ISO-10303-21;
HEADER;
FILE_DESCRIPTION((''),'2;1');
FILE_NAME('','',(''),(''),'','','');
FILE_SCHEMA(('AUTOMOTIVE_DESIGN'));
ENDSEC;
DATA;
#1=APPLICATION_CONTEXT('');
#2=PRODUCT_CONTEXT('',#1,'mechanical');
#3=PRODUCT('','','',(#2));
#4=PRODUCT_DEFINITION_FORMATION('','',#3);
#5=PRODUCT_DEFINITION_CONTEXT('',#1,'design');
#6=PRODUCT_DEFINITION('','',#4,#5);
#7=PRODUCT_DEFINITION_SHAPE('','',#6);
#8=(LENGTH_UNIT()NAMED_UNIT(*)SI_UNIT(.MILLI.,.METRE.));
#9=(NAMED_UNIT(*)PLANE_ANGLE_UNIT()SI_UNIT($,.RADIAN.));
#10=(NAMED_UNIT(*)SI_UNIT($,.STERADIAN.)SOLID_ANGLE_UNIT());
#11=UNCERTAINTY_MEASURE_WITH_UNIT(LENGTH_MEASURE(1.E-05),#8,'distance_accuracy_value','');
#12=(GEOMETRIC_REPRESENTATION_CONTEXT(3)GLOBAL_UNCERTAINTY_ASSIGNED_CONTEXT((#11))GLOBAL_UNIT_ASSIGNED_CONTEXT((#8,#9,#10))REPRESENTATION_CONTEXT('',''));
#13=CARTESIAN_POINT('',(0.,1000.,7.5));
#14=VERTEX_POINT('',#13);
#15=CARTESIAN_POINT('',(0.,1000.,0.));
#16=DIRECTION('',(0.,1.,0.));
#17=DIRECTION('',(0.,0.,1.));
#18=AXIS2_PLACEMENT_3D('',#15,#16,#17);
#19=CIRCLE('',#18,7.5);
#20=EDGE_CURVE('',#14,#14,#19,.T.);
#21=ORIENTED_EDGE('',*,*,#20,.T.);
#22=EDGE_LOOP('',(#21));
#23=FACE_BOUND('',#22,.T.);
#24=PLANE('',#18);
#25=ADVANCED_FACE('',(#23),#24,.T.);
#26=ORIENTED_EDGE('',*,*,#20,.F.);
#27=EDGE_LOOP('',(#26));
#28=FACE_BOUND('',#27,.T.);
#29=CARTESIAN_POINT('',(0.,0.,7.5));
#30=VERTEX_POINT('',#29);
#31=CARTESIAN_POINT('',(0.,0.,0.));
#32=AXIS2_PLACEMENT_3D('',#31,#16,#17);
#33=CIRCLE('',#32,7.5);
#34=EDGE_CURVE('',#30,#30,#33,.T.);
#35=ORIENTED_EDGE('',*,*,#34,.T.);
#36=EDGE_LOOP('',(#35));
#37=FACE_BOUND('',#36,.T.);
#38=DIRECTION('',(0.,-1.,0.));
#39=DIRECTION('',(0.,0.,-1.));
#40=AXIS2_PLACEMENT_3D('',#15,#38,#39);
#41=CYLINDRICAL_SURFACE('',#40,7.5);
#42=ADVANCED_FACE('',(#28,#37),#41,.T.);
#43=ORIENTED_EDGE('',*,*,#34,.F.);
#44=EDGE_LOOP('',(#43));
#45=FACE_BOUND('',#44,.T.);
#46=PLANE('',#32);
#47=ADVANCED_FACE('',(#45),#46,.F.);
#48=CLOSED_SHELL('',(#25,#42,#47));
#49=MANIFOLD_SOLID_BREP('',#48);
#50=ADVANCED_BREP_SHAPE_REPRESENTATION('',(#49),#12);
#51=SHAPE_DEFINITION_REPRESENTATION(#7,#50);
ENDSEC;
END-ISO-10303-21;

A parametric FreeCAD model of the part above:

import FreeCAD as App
import Part
import Sketcher

V = App.Vector
Q = App.Units.Quantity

doc = App.newDocument("Part")
body = doc.addObject("PartDesign::Body", "Body")

# Sketch on XZ plane
sketch1 = body.newObject("Sketcher::SketchObject", "Sketch")
sketch1.AttachmentSupport = (doc.getObject("XZ_Plane"), [""])
sketch1.MapMode = "FlatFace"
sketch1.addGeometry(Part.Circle(V(0, 0, 0), V(0, 0, 1), 8), False)
sketch1.addConstraint([
    Sketcher.Constraint("Coincident", 0, 3, -1, 1),
    Sketcher.Constraint("Diameter", 0, Q("15 mm")),
])
pad1 = body.newObject("PartDesign::Pad", "Pad")
pad1.Profile = sketch1
pad1.Length = 1000
pad1.Reversed = True

doc.recompute()
